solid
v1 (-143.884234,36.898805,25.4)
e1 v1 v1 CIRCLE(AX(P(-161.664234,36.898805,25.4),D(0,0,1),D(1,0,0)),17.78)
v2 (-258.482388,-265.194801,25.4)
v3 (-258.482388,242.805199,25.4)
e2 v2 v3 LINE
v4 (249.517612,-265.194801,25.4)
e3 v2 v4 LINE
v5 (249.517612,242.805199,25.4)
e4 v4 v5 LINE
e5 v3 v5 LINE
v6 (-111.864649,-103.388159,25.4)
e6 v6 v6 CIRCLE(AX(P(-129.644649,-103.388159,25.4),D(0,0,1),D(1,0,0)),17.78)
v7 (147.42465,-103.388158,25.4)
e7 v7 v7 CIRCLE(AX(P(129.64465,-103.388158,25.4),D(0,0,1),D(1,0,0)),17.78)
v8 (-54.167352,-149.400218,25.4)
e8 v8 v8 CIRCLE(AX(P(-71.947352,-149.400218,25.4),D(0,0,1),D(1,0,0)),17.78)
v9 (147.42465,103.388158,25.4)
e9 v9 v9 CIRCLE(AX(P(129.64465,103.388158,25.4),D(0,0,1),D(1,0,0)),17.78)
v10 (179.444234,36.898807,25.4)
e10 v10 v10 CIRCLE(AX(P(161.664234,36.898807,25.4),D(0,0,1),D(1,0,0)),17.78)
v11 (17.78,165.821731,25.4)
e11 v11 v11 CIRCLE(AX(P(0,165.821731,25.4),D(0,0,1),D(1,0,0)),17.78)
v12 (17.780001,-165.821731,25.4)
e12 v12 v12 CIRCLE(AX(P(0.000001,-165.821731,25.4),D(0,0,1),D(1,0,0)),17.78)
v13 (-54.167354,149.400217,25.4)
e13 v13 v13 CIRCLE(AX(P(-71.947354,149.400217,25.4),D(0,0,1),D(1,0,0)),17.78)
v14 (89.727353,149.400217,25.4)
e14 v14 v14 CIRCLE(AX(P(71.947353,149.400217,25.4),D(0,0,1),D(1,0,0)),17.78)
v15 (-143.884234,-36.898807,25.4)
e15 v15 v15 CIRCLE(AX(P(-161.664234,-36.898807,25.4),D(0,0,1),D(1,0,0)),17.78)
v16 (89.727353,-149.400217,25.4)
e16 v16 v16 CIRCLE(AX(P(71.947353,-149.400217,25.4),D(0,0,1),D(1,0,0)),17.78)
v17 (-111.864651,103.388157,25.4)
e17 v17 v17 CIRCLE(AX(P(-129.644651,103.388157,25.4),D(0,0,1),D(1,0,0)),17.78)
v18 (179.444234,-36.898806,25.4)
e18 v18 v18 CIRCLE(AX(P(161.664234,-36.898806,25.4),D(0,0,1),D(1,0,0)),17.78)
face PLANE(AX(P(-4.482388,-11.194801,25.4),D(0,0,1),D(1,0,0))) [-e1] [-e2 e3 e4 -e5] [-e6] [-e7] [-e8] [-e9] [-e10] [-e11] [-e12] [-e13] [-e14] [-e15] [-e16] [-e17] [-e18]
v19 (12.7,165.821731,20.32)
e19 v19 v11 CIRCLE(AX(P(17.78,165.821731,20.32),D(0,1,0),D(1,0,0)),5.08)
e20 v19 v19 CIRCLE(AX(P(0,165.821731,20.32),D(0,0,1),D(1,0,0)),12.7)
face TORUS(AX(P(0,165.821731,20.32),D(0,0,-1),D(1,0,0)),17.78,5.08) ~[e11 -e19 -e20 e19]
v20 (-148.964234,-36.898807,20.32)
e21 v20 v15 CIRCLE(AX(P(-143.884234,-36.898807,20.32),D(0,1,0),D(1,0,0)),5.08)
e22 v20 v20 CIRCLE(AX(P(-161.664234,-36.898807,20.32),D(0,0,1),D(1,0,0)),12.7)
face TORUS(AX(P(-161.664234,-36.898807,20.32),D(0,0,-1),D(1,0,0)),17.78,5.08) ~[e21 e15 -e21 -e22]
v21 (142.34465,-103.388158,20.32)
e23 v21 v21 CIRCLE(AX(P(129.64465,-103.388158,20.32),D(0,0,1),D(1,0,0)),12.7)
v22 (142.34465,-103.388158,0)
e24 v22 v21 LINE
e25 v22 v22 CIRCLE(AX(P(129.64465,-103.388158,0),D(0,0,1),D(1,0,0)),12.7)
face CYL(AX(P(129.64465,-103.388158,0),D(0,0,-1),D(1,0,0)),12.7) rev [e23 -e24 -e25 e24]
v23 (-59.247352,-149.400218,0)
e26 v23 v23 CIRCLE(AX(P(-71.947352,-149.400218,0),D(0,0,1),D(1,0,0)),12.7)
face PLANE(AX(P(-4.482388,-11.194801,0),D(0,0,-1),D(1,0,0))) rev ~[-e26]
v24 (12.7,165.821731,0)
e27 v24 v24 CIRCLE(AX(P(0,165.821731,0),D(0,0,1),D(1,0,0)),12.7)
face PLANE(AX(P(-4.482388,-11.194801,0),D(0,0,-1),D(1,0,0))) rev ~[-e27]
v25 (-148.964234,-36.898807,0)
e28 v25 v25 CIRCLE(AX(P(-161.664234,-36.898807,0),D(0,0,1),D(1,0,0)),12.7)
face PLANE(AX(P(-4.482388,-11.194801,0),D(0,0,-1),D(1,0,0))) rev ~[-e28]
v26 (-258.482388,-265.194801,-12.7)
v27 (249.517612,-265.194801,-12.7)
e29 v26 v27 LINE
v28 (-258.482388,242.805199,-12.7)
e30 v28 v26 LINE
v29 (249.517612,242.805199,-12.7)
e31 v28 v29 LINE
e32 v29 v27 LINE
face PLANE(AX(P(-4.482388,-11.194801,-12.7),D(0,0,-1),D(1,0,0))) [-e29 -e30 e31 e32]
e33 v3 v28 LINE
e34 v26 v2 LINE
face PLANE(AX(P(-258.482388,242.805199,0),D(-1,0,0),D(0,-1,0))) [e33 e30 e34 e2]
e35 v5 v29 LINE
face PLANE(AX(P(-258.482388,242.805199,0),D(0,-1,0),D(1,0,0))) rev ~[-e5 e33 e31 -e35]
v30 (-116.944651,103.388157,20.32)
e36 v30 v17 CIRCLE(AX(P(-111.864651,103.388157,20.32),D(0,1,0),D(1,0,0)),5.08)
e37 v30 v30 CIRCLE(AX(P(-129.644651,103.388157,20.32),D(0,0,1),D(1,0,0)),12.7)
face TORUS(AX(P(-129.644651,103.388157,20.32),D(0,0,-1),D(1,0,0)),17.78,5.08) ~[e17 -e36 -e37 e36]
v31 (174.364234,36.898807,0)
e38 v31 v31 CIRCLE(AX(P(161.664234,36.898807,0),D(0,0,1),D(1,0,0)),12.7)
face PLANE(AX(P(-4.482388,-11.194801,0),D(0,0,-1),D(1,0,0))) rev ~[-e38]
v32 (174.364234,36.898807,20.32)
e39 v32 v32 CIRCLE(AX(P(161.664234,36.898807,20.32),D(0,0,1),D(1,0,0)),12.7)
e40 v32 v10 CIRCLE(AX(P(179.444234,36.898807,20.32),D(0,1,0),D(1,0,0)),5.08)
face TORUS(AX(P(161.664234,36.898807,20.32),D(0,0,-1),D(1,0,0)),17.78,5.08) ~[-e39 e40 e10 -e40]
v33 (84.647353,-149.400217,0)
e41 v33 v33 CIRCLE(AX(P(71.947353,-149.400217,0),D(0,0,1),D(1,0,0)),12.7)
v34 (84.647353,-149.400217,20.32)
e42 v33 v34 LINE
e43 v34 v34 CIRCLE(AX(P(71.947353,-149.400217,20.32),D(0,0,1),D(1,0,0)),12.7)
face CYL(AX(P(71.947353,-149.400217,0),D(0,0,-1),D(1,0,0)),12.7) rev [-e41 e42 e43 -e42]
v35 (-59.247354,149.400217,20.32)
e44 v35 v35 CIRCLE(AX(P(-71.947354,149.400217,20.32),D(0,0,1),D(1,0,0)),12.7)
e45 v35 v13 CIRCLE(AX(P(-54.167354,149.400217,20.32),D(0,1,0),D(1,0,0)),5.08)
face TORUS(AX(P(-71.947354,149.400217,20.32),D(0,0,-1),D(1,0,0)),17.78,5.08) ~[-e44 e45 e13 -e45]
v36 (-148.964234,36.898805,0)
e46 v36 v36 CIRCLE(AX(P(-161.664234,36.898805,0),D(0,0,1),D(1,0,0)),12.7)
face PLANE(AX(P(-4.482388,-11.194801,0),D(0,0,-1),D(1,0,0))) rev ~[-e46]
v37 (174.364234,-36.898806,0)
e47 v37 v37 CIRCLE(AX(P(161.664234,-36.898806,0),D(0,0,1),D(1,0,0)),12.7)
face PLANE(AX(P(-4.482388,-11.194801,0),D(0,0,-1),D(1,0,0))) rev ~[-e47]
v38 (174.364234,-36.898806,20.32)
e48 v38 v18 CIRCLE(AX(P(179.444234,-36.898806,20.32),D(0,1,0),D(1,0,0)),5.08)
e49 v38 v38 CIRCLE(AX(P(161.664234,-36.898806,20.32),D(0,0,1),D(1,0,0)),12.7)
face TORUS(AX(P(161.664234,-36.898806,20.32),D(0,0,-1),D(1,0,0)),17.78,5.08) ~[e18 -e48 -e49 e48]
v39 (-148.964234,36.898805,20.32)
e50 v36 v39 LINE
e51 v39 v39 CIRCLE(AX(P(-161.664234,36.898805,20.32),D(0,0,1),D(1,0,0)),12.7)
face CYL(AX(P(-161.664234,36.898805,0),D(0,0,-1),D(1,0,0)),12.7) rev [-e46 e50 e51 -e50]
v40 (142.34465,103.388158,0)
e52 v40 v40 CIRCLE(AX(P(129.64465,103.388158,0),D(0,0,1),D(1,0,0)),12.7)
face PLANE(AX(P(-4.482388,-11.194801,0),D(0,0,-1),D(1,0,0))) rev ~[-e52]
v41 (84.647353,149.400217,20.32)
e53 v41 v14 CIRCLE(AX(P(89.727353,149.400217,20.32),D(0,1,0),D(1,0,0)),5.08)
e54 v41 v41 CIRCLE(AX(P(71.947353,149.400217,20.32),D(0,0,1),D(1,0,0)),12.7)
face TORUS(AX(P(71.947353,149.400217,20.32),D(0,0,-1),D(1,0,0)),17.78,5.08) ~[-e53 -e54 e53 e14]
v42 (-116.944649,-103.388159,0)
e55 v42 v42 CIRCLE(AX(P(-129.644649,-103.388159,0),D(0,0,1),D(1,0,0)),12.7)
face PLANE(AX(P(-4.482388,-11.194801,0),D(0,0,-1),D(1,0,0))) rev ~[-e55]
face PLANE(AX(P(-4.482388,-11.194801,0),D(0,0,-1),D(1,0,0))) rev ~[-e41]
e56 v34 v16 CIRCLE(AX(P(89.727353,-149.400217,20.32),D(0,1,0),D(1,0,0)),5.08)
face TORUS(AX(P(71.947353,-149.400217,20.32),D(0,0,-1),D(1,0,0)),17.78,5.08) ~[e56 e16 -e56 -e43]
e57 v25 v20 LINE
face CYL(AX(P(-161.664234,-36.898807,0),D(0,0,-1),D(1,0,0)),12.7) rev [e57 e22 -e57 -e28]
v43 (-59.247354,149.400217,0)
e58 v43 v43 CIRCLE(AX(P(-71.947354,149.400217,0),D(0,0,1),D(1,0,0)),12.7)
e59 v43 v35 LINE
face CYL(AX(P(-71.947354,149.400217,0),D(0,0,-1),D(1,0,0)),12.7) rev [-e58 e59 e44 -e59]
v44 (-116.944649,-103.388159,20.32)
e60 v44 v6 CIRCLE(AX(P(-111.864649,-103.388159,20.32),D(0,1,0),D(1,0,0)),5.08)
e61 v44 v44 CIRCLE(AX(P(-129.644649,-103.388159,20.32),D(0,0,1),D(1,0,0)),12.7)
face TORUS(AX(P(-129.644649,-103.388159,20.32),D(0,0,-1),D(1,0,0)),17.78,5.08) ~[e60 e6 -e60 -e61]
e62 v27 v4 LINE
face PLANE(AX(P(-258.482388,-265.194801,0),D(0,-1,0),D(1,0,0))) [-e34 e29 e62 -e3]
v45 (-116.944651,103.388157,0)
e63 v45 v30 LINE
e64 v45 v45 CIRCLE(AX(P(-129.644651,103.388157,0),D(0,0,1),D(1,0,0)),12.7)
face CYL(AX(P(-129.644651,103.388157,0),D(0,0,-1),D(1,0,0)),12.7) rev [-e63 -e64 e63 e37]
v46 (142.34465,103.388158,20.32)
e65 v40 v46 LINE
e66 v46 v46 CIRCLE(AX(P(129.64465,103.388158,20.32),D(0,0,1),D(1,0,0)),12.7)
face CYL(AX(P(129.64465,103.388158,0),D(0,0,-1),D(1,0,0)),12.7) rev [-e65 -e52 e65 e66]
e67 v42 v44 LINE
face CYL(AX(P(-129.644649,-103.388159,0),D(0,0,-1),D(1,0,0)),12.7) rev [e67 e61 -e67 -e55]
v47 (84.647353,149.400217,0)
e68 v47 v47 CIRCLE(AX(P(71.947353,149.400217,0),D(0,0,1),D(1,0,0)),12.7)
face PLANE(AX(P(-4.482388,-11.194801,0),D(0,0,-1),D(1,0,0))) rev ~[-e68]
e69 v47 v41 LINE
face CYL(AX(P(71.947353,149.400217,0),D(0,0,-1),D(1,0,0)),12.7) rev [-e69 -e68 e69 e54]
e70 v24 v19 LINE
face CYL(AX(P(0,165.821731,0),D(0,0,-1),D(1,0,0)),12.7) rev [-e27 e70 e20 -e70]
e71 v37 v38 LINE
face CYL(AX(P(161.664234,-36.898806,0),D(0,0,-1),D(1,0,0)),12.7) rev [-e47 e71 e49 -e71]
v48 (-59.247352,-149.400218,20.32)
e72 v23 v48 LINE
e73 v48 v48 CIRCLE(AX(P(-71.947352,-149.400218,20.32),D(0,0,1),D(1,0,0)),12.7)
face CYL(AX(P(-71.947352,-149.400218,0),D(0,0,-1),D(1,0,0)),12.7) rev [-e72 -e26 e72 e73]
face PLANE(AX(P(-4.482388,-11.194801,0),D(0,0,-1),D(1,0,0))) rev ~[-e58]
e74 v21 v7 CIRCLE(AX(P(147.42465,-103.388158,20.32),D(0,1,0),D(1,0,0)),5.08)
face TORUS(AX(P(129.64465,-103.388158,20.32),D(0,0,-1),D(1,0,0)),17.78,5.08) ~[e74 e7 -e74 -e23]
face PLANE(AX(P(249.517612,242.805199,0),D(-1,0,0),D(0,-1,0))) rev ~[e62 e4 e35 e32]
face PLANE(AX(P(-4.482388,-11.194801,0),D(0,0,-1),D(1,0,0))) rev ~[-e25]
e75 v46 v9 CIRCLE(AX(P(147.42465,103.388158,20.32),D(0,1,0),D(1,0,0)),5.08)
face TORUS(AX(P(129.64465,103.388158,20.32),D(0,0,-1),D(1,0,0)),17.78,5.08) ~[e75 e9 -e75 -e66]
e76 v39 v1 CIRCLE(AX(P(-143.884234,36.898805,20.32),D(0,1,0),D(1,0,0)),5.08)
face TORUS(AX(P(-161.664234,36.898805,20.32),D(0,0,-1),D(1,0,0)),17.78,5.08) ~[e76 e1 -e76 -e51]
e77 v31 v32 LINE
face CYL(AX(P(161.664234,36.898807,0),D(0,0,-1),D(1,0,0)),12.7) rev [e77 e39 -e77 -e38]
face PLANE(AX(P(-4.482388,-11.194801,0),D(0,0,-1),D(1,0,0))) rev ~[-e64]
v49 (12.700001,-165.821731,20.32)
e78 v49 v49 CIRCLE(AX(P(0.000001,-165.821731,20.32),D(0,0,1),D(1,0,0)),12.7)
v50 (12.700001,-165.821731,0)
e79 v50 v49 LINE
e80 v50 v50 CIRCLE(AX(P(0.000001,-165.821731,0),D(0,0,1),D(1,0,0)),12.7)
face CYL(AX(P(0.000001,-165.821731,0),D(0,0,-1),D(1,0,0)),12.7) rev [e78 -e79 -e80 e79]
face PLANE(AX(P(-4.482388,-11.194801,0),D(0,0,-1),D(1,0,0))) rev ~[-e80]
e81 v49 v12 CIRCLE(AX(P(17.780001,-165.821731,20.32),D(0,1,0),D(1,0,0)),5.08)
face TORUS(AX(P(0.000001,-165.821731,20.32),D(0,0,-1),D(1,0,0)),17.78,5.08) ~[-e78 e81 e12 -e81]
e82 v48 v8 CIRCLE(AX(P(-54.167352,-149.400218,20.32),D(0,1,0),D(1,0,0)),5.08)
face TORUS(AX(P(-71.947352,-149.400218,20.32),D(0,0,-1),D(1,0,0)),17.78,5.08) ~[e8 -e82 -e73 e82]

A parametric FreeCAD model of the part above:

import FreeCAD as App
import Part
import Sketcher
from FreeCAD import Vector
Q = App.Units.Quantity


def edges_at(feature, points):
    """Names of the edges that pass closest to the given points."""
    edges = feature.Shape.Edges
    near = lambda p: min(range(len(edges)), key=lambda i: edges[i].distToShape(Part.Vertex(*p))[0])
    return sorted({f"Edge{near(p) + 1}" for p in points})

doc = App.newDocument("Part")
params = doc.addObject("Spreadsheet::Sheet", "Params")
for row, (alias, value) in enumerate([
    ("sketch1_diameter", "1 in"),
    ("sketch1_width", "20 in"),
    ("pad1_length", "1 in"),
    ("fillet_radius", "0.2 in"),
    ("sketch2_width", "20 in"),
    ("pad2_length", "0.5 in"),
], start=1):
    params.set(f"A{row}", alias)
    params.set(f"B{row}", "=" + value)
    params.setAlias(f"B{row}", alias)

body = doc.addObject("PartDesign::Body", "Body")

# Sketch on XY plane
sketch1 = body.newObject("Sketcher::SketchObject", "Sketch")
sketch1.AttachmentSupport = (doc.getObject("XY_Plane"), [""])
sketch1.MapMode = "FlatFace"
sketch1.addGeometry([
    Part.LineSegment(Vector(-258, 243, 0), Vector(-258, -265, 0)),  # 0
    Part.LineSegment(Vector(-258, -265, 0), Vector(250, -265, 0)),  # 1
    Part.LineSegment(Vector(250, -265, 0), Vector(250, 243, 0)),  # 2
    Part.LineSegment(Vector(250, 243, 0), Vector(-258, 243, 0)),  # 3
    Part.Circle(Vector(-130, -103, 0), Vector(0, 0, 1), 13),  # 4
    Part.Circle(Vector(-72, -149, 0), Vector(0, 0, 1), 13),  # 5
    Part.Circle(Vector(-162, -37, 0), Vector(0, 0, 1), 13),  # 6
    Part.Circle(Vector(0, -166, 0), Vector(0, 0, 1), 13),  # 7
    Part.Circle(Vector(72, -149, 0), Vector(0, 0, 1), 13),  # 8
    Part.Circle(Vector(130, -103, 0), Vector(0, 0, 1), 13),  # 9
    Part.Circle(Vector(162, -37, 0), Vector(0, 0, 1), 13),  # 10
    Part.Circle(Vector(-162, 37, 0), Vector(0, 0, 1), 13),  # 11
    Part.Circle(Vector(-130, 103, 0), Vector(0, 0, 1), 13),  # 12
    Part.Circle(Vector(-72, 149, 0), Vector(0, 0, 1), 13),  # 13
    Part.Circle(Vector(162, 37, 0), Vector(0, 0, 1), 13),  # 14
    Part.Circle(Vector(0, 166, 0), Vector(0, 0, 1), 13),  # 15
    Part.Circle(Vector(72, 149, 0), Vector(0, 0, 1), 13),  # 16
    Part.Circle(Vector(130, 103, 0), Vector(0, 0, 1), 13),  # 17
], False)
sketch1.addConstraint([
    Sketcher.Constraint("Coincident", 0, 2, 1, 1),
    Sketcher.Constraint("Coincident", 1, 2, 2, 1),
    Sketcher.Constraint("Coincident", 2, 2, 3, 1),
    Sketcher.Constraint("Coincident", 3, 2, 0, 1),
    Sketcher.Constraint("Vertical", 0),
    Sketcher.Constraint("Horizontal", 1),
    Sketcher.Constraint("Vertical", 2),
    Sketcher.Constraint("Horizontal", 3),
    Sketcher.Constraint("Equal", 4, 5),
    Sketcher.Constraint("Equal", 5, 6),
    Sketcher.Constraint("Equal", 6, 7),
    Sketcher.Constraint("Equal", 7, 8),
    Sketcher.Constraint("Equal", 8, 9),
    Sketcher.Constraint("Equal", 9, 10),
    Sketcher.Constraint("Equal", 10, 11),
    Sketcher.Constraint("Equal", 11, 12),
    Sketcher.Constraint("Equal", 12, 13),
    Sketcher.Constraint("Equal", 13, 14),
    Sketcher.Constraint("Equal", 14, 15),
    Sketcher.Constraint("Equal", 15, 16),
    Sketcher.Constraint("Equal", 16, 17),
    Sketcher.Constraint("Symmetric", 10, 3, 11, 3, -1, 1),
    Sketcher.Constraint("Symmetric", 9, 3, 12, 3, -1, 1),
    Sketcher.Constraint("Symmetric", 8, 3, 13, 3, -1, 1),
    Sketcher.Constraint("Symmetric", 6, 3, 14, 3, -1, 1),
    Sketcher.Constraint("Symmetric", 7, 3, 15, 3, -1, 1),
    Sketcher.Constraint("Symmetric", 5, 3, 16, 3, -1, 1),
    Sketcher.Constraint("Symmetric", 4, 3, 17, 3, -1, 1),
    Sketcher.Constraint("Symmetric", 5, 3, 8, 3, -2),
    Sketcher.Constraint("Symmetric", 4, 3, 9, 3, -2),
    Sketcher.Constraint("Symmetric", 6, 3, 10, 3, -2),
    Sketcher.Constraint("PointOnObject", 7, 3, -2),
    Sketcher.Constraint("Equal", 3, 0),
    Sketcher.Constraint("Diameter", 4, Q("1 in")),
    Sketcher.Constraint("DistanceX", 1, 1, 1, 2, Q("20 in")),
    Sketcher.Constraint("DistanceY", 4, 3, -1, 1, Q("4.0704 in")),
    Sketcher.Constraint("DistanceY", 0, 2, -1, 1, Q("265.194801 mm")),
    Sketcher.Constraint("DistanceX", 4, 3, 9, 3, Q("259.289299 mm")),
    Sketcher.Constraint("DistanceX", 12, 3, 5, 3, Q("57.697299 mm")),
    Sketcher.Constraint("DistanceY", 7, 3, -1, 1, Q("165.821731 mm")),
    Sketcher.Constraint("DistanceX", 0, 2, -1, 1, Q("258.482388 mm")),
    Sketcher.Constraint("DistanceY", 5, 3, 4, 3, Q("46.012059 mm")),
    Sketcher.Constraint("DistanceY", 4, 3, 6, 3, Q("66.489352 mm")),
    Sketcher.Constraint("DistanceX", 6, 3, 5, 3, Q("89.716882 mm")),
])
sketch1.setExpression("Constraints[33]", "Params.sketch1_diameter")
sketch1.setExpression("Constraints[34]", "Params.sketch1_width")
pad1 = body.newObject("PartDesign::Pad", "Pad")
pad1.Profile = sketch1
pad1.setExpression("Length", "Params.pad1_length")
doc.recompute()

fillet = body.newObject("PartDesign::Fillet", "Fillet")
fillet.Base = (pad1, edges_at(pad1, [
    (-12.7, 165.822, 25.4),
    (116.945, 103.388, 25.4),
    (59.247, 149.4, 25.4),
    (148.964, 36.899, 25.4),
    (148.964, -36.899, 25.4),
    (116.945, -103.388, 25.4),
    (59.247, -149.4, 25.4),
    (-12.7, -165.822, 25.4),
    (-84.647, -149.4, 25.4),
    (-142.345, -103.388, 25.4),
    (-174.364, -36.899, 25.4),
    (-174.364, 36.899, 25.4),
    (-142.345, 103.388, 25.4),
    (-84.647, 149.4, 25.4),
]))
fillet.setExpression("Radius", "Params.fillet_radius")

# Sketch on XY plane
sketch2 = body.newObject("Sketcher::SketchObject", "Sketch001")
sketch2.AttachmentSupport = (doc.getObject("XY_Plane"), [""])
sketch2.MapMode = "FlatFace"
sketch2.addGeometry([
    Part.LineSegment(Vector(-258, -265, 0), Vector(-258, 243, 0)),
    Part.LineSegment(Vector(-258, 243, 0), Vector(250, 243, 0)),
    Part.LineSegment(Vector(250, 243, 0), Vector(250, -265, 0)),
    Part.LineSegment(Vector(250, -265, 0), Vector(-258, -265, 0)),
], False)
sketch2.addConstraint([
    Sketcher.Constraint("Coincident", 0, 2, 1, 1),
    Sketcher.Constraint("Coincident", 1, 2, 2, 1),
    Sketcher.Constraint("Coincident", 2, 2, 3, 1),
    Sketcher.Constraint("Coincident", 3, 2, 0, 1),
    Sketcher.Constraint("Vertical", 0),
    Sketcher.Constraint("Horizontal", 1),
    Sketcher.Constraint("Vertical", 2),
    Sketcher.Constraint("Horizontal", 3),
    Sketcher.Constraint("Equal", 3, 0),
    Sketcher.Constraint("DistanceX", 1, 1, 1, 2, Q("20 in")),
    Sketcher.Constraint("DistanceY", -1, 1, 0, 2, Q("242.805199 mm")),
    Sketcher.Constraint("DistanceX", 0, 2, -1, 1, Q("258.482388 mm")),
])
sketch2.setExpression("Constraints[9]", "Params.sketch2_width")
pad2 = body.newObject("PartDesign::Pad", "Pad001")
pad2.Profile = sketch2
pad2.setExpression("Length", "Params.pad2_length")
pad2.Reversed = True

doc.recompute()
